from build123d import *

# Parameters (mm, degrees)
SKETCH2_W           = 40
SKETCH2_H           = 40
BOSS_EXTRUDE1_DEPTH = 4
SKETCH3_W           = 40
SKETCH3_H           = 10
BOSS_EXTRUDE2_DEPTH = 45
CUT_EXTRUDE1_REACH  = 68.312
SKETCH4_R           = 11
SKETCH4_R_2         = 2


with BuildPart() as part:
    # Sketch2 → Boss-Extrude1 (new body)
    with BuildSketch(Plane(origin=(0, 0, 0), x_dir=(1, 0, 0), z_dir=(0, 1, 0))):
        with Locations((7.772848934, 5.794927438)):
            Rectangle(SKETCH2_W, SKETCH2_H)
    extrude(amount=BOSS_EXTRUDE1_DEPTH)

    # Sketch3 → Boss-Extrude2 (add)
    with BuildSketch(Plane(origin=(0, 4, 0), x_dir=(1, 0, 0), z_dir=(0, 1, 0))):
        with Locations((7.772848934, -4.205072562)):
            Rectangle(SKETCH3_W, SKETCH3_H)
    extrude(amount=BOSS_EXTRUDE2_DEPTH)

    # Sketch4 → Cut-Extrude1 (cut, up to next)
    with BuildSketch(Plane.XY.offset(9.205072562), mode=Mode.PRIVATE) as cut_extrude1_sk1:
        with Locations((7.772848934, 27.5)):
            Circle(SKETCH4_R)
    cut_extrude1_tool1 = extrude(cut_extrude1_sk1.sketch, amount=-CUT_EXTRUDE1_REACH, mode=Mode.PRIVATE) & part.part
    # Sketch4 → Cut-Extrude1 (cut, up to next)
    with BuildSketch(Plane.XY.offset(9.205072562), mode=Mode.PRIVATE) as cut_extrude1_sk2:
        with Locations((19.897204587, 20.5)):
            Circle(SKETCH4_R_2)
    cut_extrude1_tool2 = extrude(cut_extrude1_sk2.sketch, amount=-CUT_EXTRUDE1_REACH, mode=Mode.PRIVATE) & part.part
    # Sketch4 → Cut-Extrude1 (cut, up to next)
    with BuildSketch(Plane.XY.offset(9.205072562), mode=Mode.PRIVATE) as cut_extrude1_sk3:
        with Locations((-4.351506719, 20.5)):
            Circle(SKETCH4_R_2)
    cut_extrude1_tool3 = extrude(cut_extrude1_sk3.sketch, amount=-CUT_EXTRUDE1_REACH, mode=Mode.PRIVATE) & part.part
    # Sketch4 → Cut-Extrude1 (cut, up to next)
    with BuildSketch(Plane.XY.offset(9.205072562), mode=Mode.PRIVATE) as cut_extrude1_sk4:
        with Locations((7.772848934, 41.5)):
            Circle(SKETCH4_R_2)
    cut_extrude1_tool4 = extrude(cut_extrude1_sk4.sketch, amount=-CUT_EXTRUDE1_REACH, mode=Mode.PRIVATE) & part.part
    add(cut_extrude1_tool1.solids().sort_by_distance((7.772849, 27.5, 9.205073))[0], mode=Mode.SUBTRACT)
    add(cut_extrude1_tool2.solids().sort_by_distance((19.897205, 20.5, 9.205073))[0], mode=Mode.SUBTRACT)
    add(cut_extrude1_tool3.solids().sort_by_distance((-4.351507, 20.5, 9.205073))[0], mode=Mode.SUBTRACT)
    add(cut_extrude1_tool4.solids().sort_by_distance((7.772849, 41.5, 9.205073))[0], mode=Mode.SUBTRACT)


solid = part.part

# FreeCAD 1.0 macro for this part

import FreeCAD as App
import Part
import Sketcher

doc = App.newDocument("Part")
body = doc.addObject("PartDesign::Body", "Body")

# Sketch on XZ plane
sketch1 = body.newObject("Sketcher::SketchObject", "Sketch")
sketch1.AttachmentSupport = (doc.getObject("XZ_Plane"), [""])
sketch1.MapMode = "FlatFace"
sketch1.addGeometry([
    Part.LineSegment(App.Vector(-12, -26, 0), App.Vector(-12, 14, 0)),
    Part.LineSegment(App.Vector(-12, 14, 0), App.Vector(28, 14, 0)),
    Part.LineSegment(App.Vector(28, 14, 0), App.Vector(28, -26, 0)),
    Part.LineSegment(App.Vector(28, -26, 0), App.Vector(-12, -26, 0)),
], False)
sketch1.addConstraint([
    Sketcher.Constraint("Coincident", 0, 2, 1, 1),
    Sketcher.Constraint("Coincident", 1, 2, 2, 1),
    Sketcher.Constraint("Coincident", 2, 2, 3, 1),
    Sketcher.Constraint("Coincident", 3, 2, 0, 1),
    Sketcher.Constraint("Vertical", 0),
    Sketcher.Constraint("Horizontal", 1),
    Sketcher.Constraint("Vertical", 2),
    Sketcher.Constraint("Horizontal", 3),
    Sketcher.Constraint("Equal", 3, 0),
    Sketcher.Constraint("DistanceX", 1, 1, 1, 2, 40.0),
    Sketcher.Constraint("DistanceX", 0, 2, -1, 1, 12.227151),
    Sketcher.Constraint("DistanceY", -1, 1, 0, 2, 14.205073),
])
pad1 = body.newObject("PartDesign::Pad", "Pad")
pad1.Profile = sketch1
pad1.Length = 4
pad1.Reversed = True

# Sketch on XZ plane
sketch2 = body.newObject("Sketcher::SketchObject", "Sketch001")
sketch2.AttachmentSupport = (doc.getObject("XZ_Plane"), [""])
sketch2.MapMode = "FlatFace"
sketch2.AttachmentOffset = App.Placement(App.Vector(0, 0, -4), App.Rotation())
sketch2.addGeometry([
    Part.LineSegment(App.Vector(-12, -1, 0), App.Vector(-12, 9, 0)),
    Part.LineSegment(App.Vector(-12, 9, 0), App.Vector(28, 9, 0)),
    Part.LineSegment(App.Vector(28, 9, 0), App.Vector(28, -1, 0)),
    Part.LineSegment(App.Vector(28, -1, 0), App.Vector(-12, -1, 0)),
], False)
sketch2.addConstraint([
    Sketcher.Constraint("Coincident", 0, 2, 1, 1),
    Sketcher.Constraint("Coincident", 1, 2, 2, 1),
    Sketcher.Constraint("Coincident", 2, 2, 3, 1),
    Sketcher.Constraint("Coincident", 3, 2, 0, 1),
    Sketcher.Constraint("Vertical", 0),
    Sketcher.Constraint("Horizontal", 1),
    Sketcher.Constraint("Vertical", 2),
    Sketcher.Constraint("Horizontal", 3),
    Sketcher.Constraint("DistanceX", 1, 1, 1, 2, 40.0),
    Sketcher.Constraint("DistanceY", 0, 1, 0, 2, 10.0),
    Sketcher.Constraint("DistanceX", 0, 2, -1, 1, 12.227151),
    Sketcher.Constraint("DistanceY", -1, 1, 0, 2, 9.205073),
])
pad2 = body.newObject("PartDesign::Pad", "Pad001")
pad2.Profile = sketch2
pad2.Length = 45
pad2.Reversed = True

# Sketch on XY plane
sketch3 = body.newObject("Sketcher::SketchObject", "Sketch002")
sketch3.AttachmentSupport = (doc.getObject("XY_Plane"), [""])
sketch3.MapMode = "FlatFace"
sketch3.AttachmentOffset = App.Placement(App.Vector(0, 0, 9.205073), App.Rotation())
sketch3.addGeometry(Part.Circle(App.Vector(8, 28, 0), App.Vector(0, 0, 1), 11), False)
sketch3.addConstraint([
    Sketcher.Constraint("Diameter", 0, 22.0),
    Sketcher.Constraint("DistanceY", -1, 1, 0, 3, 27.5),
    Sketcher.Constraint("DistanceX", -1, 1, 0, 3, 7.772849),
])
pocket1 = body.newObject("PartDesign::Pocket", "Pocket")
pocket1.Profile = sketch3
pocket1.Type = "UpToFirst"

# Sketch on XY plane
sketch4 = body.newObject("Sketcher::SketchObject", "Sketch003")
sketch4.AttachmentSupport = (doc.getObject("XY_Plane"), [""])
sketch4.MapMode = "FlatFace"
sketch4.AttachmentOffset = App.Placement(App.Vector(0, 0, 9.205073), App.Rotation())
sketch4.addGeometry(Part.Circle(App.Vector(19.9, 20.5, 0), App.Vector(0, 0, 1), 2), False)
sketch4.addConstraint([
    Sketcher.Constraint("Diameter", 0, 4.0),
    Sketcher.Constraint("DistanceY", -1, 1, 0, 3, 20.5),
    Sketcher.Constraint("DistanceX", -1, 1, 0, 3, 19.897205),
])
pocket2 = body.newObject("PartDesign::Pocket", "Pocket001")
pocket2.Profile = sketch4
pocket2.Type = "UpToFirst"

# Sketch on XY plane
sketch5 = body.newObject("Sketcher::SketchObject", "Sketch004")
sketch5.AttachmentSupport = (doc.getObject("XY_Plane"), [""])
sketch5.MapMode = "FlatFace"
sketch5.AttachmentOffset = App.Placement(App.Vector(0, 0, 9.205073), App.Rotation())
sketch5.addGeometry(Part.Circle(App.Vector(-4.4, 20.5, 0), App.Vector(0, 0, 1), 2), False)
sketch5.addConstraint([
    Sketcher.Constraint("Diameter", 0, 4.0),
    Sketcher.Constraint("DistanceY", -1, 1, 0, 3, 20.5),
    Sketcher.Constraint("DistanceX", 0, 3, -1, 1, 4.351507),
])
pocket3 = body.newObject("PartDesign::Pocket", "Pocket002")
pocket3.Profile = sketch5
pocket3.Type = "UpToFirst"

# Sketch on XY plane
sketch6 = body.newObject("Sketcher::SketchObject", "Sketch005")
sketch6.AttachmentSupport = (doc.getObject("XY_Plane"), [""])
sketch6.MapMode = "FlatFace"
sketch6.AttachmentOffset = App.Placement(App.Vector(0, 0, 9.205073), App.Rotation())
sketch6.addGeometry(Part.Circle(App.Vector(7.8, 41.5, 0), App.Vector(0, 0, 1), 2), False)
sketch6.addConstraint([
    Sketcher.Constraint("Diameter", 0, 4.0),
    Sketcher.Constraint("DistanceY", -1, 1, 0, 3, 41.5),
    Sketcher.Constraint("DistanceX", -1, 1, 0, 3, 7.772849),
])
pocket4 = body.newObject("PartDesign::Pocket", "Pocket003")
pocket4.Profile = sketch6
pocket4.Type = "UpToFirst"

doc.recompute()
